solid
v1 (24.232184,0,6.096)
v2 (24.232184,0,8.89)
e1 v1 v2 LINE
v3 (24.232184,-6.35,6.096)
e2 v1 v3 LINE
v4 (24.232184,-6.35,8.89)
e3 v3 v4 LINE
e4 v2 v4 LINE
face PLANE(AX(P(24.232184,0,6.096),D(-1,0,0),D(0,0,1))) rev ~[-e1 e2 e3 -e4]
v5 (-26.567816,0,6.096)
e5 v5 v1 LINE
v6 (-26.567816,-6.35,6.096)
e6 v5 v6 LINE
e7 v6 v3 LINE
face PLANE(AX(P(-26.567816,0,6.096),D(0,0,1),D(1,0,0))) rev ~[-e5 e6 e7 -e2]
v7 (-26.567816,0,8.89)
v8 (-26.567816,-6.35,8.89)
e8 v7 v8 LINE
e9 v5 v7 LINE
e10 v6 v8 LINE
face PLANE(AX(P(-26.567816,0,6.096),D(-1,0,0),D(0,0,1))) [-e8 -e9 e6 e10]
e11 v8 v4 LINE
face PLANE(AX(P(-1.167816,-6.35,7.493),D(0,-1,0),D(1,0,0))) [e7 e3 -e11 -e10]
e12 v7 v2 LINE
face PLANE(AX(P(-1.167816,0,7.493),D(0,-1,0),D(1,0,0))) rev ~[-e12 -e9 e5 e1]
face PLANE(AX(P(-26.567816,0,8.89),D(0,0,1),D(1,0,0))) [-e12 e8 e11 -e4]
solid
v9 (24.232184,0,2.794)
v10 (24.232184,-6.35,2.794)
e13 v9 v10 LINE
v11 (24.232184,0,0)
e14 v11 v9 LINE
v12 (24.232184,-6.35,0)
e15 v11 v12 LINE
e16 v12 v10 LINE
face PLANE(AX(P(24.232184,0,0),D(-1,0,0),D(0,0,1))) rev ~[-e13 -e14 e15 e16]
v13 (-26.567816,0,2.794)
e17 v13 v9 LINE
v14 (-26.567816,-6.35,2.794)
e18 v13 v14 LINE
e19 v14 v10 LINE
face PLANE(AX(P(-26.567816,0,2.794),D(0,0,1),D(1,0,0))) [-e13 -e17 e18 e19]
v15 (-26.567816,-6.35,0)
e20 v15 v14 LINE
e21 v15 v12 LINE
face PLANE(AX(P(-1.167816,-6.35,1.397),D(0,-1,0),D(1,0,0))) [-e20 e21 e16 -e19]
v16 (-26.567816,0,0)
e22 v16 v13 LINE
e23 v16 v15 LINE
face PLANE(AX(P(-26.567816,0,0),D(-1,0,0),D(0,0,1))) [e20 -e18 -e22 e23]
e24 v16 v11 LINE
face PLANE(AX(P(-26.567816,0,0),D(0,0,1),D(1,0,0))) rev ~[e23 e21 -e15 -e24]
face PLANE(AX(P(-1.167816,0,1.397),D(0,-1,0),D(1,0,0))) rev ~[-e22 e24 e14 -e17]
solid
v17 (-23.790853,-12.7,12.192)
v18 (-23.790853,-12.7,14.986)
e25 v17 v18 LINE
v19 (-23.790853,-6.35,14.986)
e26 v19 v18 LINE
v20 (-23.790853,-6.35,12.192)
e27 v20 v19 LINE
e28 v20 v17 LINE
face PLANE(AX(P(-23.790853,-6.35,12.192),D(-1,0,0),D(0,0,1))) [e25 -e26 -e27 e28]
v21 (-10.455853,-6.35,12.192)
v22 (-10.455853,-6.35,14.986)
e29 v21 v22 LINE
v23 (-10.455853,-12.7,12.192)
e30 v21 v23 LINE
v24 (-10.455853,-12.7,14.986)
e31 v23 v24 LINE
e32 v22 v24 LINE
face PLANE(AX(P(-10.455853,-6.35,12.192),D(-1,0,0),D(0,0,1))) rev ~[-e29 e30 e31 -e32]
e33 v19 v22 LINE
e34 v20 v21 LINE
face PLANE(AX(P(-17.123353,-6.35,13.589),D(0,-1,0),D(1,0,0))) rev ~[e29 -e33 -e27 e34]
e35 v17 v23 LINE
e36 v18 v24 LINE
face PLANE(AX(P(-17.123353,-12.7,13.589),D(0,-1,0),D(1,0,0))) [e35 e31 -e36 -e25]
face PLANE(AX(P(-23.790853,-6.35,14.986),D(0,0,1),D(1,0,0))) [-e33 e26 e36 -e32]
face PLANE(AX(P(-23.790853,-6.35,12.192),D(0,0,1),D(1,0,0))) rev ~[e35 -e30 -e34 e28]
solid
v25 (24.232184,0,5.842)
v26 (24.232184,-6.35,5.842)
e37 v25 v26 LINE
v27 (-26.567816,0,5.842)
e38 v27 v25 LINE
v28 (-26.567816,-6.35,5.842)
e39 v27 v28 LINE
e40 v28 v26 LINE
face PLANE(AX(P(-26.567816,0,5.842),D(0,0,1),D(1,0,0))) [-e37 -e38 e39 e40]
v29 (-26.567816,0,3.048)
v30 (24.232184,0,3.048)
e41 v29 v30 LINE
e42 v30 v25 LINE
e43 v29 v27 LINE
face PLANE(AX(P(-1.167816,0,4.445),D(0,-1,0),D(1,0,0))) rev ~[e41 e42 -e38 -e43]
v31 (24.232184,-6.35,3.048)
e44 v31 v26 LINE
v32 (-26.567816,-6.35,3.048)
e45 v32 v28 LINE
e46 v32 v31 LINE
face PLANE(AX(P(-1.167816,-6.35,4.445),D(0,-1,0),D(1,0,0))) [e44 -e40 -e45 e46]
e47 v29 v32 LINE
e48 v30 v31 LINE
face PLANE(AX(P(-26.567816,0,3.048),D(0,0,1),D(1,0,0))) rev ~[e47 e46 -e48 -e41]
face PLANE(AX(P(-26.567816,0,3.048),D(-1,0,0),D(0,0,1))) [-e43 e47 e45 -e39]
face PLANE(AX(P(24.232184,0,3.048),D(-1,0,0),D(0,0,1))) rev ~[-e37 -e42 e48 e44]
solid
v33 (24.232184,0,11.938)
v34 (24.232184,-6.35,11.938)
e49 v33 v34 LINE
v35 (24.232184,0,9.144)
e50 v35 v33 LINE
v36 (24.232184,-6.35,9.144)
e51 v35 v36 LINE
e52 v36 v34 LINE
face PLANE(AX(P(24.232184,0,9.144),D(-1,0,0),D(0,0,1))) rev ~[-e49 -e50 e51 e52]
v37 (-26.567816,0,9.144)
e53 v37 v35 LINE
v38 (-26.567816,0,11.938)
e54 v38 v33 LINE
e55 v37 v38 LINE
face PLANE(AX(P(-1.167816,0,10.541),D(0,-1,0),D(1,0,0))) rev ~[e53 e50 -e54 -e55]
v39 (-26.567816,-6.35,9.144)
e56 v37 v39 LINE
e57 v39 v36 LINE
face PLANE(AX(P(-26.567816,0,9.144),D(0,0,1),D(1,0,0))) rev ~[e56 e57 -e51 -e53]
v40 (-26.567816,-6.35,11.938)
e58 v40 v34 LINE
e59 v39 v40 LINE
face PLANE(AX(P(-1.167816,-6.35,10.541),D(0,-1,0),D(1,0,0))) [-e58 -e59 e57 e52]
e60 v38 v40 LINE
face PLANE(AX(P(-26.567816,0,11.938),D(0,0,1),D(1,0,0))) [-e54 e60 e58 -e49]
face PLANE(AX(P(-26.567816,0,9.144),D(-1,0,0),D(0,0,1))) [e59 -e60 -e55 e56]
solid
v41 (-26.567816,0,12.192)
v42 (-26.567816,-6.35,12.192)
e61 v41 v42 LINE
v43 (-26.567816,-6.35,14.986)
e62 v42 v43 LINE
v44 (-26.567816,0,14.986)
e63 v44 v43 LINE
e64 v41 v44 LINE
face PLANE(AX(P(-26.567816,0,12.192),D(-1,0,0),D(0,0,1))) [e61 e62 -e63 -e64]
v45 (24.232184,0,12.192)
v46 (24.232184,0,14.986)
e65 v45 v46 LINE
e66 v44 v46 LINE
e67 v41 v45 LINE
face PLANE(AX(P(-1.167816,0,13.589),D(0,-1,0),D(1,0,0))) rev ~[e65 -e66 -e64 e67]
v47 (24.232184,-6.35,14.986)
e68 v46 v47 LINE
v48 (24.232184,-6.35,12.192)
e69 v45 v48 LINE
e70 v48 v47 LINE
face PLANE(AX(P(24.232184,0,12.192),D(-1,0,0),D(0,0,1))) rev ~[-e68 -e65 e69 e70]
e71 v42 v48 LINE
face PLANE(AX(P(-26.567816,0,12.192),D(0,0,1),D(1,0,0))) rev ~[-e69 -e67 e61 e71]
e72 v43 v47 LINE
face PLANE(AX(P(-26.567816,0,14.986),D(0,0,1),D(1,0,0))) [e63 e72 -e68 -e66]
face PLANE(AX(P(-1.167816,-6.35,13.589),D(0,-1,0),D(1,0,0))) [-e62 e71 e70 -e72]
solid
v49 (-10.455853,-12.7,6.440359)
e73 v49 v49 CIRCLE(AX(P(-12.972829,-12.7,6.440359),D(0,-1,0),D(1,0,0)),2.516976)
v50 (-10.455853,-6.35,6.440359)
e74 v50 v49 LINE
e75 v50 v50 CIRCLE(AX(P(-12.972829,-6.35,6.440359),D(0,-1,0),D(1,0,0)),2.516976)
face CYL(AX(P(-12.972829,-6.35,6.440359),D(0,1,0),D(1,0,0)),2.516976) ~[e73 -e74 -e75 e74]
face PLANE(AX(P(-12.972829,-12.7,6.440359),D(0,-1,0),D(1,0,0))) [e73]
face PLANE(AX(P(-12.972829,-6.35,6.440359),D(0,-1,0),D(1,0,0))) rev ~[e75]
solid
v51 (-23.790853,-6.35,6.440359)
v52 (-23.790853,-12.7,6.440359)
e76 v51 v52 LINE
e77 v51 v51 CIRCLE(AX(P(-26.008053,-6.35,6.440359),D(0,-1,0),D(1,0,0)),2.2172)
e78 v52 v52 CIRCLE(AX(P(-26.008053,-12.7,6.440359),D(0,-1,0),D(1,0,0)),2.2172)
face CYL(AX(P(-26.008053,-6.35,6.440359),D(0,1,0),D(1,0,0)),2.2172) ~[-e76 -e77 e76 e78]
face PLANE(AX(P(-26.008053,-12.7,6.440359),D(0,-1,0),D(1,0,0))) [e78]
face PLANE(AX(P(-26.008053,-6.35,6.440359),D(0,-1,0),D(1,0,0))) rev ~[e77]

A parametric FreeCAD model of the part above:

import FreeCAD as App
import Part
import Sketcher
from FreeCAD import Vector
Q = App.Units.Quantity


def add_polygon(sketch, points):
    """Adds a closed chain of lines whose ends are joined by coincident constraints."""
    first, n = sketch.GeometryCount, len(points)
    for a, b in zip(points, points[1:] + points[:1]):
        sketch.addGeometry(Part.LineSegment(App.Vector(*a, 0), App.Vector(*b, 0)), False)
    for i in range(n):
        sketch.addConstraint(Sketcher.Constraint("Coincident", first + i, 2, first + (i + 1) % n, 1))

doc = App.newDocument("Part")
body = doc.addObject("PartDesign::Body", "Body")
body.AllowCompound = True

sketch1 = body.newObject("Sketcher::SketchObject", "Sketch")
sketch1.AttachmentSupport = (doc.getObject("XZ_Plane"), [""])
sketch1.MapMode = "FlatFace"
add_polygon(sketch1, [(-26.567816, 14.986), (-26.567816, 12.192), (24.232184, 12.192), (24.232184, 14.986)])
add_polygon(sketch1, [(-26.567816, 11.938), (-26.567816, 9.144), (24.232184, 9.144), (24.232184, 11.938)])
add_polygon(sketch1, [(-26.567816, 8.89), (-26.567816, 6.096), (24.232184, 6.096), (24.232184, 8.89)])
add_polygon(sketch1, [(-26.567816, 5.842), (-26.567816, 3.048), (24.232184, 3.048), (24.232184, 5.842)])
add_polygon(sketch1, [(-26.567816, 2.794), (-26.567816, 0), (24.232184, 0), (24.232184, 2.794)])
sketch1.addConstraint([
    Sketcher.Constraint("Vertical", 0),
    Sketcher.Constraint("Horizontal", 1),
    Sketcher.Constraint("Vertical", 2),
    Sketcher.Constraint("Horizontal", 3),
    Sketcher.Constraint("Vertical", 4),
    Sketcher.Constraint("Horizontal", 5),
    Sketcher.Constraint("Vertical", 6),
    Sketcher.Constraint("Horizontal", 7),
    Sketcher.Constraint("Vertical", 8),
    Sketcher.Constraint("Horizontal", 9),
    Sketcher.Constraint("Vertical", 10),
    Sketcher.Constraint("Horizontal", 11),
    Sketcher.Constraint("Vertical", 12),
    Sketcher.Constraint("Horizontal", 13),
    Sketcher.Constraint("Vertical", 14),
    Sketcher.Constraint("Horizontal", 15),
    Sketcher.Constraint("Vertical", 16),
    Sketcher.Constraint("Horizontal", 17),
    Sketcher.Constraint("Vertical", 18),
    Sketcher.Constraint("Horizontal", 19),
    Sketcher.Constraint("PointOnObject", 16, 2, -1),
    Sketcher.Constraint("Vertical", 3, 2, 4, 2),
    Sketcher.Constraint("Vertical", 2, 2, 5, 2),
    Sketcher.Constraint("Vertical", 7, 2, 8, 2),
    Sketcher.Constraint("Vertical", 6, 2, 9, 2),
    Sketcher.Constraint("Vertical", 11, 2, 12, 2),
    Sketcher.Constraint("Vertical", 10, 2, 13, 2),
    Sketcher.Constraint("Vertical", 15, 2, 16, 2),
    Sketcher.Constraint("Vertical", 14, 2, 17, 2),
    Sketcher.Constraint("Equal", 2, 4),
    Sketcher.Constraint("Equal", 6, 8),
    Sketcher.Constraint("Equal", 10, 12),
    Sketcher.Constraint("Equal", 14, 16),
    Sketcher.Constraint("DistanceX", 1, 1, 1, 2, Q("2 in")),
    Sketcher.Constraint("DistanceY", 0, 2, 0, 1, Q("0.11 in")),
    Sketcher.Constraint("DistanceY", -1, 1, 0, 2, Q("0.48 in")),
    Sketcher.Constraint("DistanceY", -1, 1, 4, 2, Q("0.36 in")),
    Sketcher.Constraint("DistanceY", -1, 1, 8, 2, Q("0.24 in")),
    Sketcher.Constraint("DistanceY", -1, 1, 12, 2, Q("0.12 in")),
    Sketcher.Constraint("DistanceX", 0, 2, -1, 1, 26.567816),
])
pad1 = body.newObject("PartDesign::Pad", "Pad")
pad1.Profile = sketch1
pad1.Length = Q("0.25 in")
body2 = doc.addObject("PartDesign::Body", "Body001")
body2.AllowCompound = True

sketch2 = body2.newObject("Sketcher::SketchObject", "Sketch001")
sketch2.AttachmentSupport = (doc.getObject("XZ_Plane001"), [""])
sketch2.MapMode = "FlatFace"
sketch2.AttachmentOffset = App.Placement(Vector(0, 0, 0.25 * 25.4), App.Rotation())
sketch2.addGeometry(Part.Circle(Vector(-12.972829, 6.440359, 0), Vector(0, 0, 1), 2.516976), False)
sketch2.addGeometry(Part.Circle(Vector(-26.008053, 6.440359, 0), Vector(0, 0, 1), 2.2172), False)
add_polygon(sketch2, [(-23.790853, 14.986), (-23.790853, 12.192), (-10.455853, 12.192), (-10.455853, 14.986)])
sketch2.addConstraint([
    Sketcher.Constraint("Vertical", 2),
    Sketcher.Constraint("Horizontal", 3),
    Sketcher.Constraint("Vertical", 4),
    Sketcher.Constraint("Horizontal", 5),
    Sketcher.Constraint("Horizontal", 0, 3, 1, 3),
    Sketcher.Constraint("DistanceY", 2, 2, 2, 1, Q("0.11 in")),
    Sketcher.Constraint("Diameter", 1, 4.4344),
    Sketcher.Constraint("DistanceX", 3, 1, 3, 2, Q("0.525 in")),
    Sketcher.Constraint("DistanceY", -1, 1, 2, 2, Q("0.48 in")),
    Sketcher.Constraint("Diameter", 0, 5.033952),
    Sketcher.Constraint("DistanceX", 1, 3, 2, 2, 2.2172),
    Sketcher.Constraint("DistanceX", 0, 3, -1, 1, 12.972829),
    Sketcher.Constraint("DistanceY", -1, 1, 0, 3, 6.440359),
    Sketcher.Constraint("DistanceX", 1, 3, -1, 1, 26.008053),
])
pad2 = body2.newObject("PartDesign::Pad", "Pad001")
pad2.Profile = sketch2
pad2.Length = Q("0.25 in")

doc.recompute()
